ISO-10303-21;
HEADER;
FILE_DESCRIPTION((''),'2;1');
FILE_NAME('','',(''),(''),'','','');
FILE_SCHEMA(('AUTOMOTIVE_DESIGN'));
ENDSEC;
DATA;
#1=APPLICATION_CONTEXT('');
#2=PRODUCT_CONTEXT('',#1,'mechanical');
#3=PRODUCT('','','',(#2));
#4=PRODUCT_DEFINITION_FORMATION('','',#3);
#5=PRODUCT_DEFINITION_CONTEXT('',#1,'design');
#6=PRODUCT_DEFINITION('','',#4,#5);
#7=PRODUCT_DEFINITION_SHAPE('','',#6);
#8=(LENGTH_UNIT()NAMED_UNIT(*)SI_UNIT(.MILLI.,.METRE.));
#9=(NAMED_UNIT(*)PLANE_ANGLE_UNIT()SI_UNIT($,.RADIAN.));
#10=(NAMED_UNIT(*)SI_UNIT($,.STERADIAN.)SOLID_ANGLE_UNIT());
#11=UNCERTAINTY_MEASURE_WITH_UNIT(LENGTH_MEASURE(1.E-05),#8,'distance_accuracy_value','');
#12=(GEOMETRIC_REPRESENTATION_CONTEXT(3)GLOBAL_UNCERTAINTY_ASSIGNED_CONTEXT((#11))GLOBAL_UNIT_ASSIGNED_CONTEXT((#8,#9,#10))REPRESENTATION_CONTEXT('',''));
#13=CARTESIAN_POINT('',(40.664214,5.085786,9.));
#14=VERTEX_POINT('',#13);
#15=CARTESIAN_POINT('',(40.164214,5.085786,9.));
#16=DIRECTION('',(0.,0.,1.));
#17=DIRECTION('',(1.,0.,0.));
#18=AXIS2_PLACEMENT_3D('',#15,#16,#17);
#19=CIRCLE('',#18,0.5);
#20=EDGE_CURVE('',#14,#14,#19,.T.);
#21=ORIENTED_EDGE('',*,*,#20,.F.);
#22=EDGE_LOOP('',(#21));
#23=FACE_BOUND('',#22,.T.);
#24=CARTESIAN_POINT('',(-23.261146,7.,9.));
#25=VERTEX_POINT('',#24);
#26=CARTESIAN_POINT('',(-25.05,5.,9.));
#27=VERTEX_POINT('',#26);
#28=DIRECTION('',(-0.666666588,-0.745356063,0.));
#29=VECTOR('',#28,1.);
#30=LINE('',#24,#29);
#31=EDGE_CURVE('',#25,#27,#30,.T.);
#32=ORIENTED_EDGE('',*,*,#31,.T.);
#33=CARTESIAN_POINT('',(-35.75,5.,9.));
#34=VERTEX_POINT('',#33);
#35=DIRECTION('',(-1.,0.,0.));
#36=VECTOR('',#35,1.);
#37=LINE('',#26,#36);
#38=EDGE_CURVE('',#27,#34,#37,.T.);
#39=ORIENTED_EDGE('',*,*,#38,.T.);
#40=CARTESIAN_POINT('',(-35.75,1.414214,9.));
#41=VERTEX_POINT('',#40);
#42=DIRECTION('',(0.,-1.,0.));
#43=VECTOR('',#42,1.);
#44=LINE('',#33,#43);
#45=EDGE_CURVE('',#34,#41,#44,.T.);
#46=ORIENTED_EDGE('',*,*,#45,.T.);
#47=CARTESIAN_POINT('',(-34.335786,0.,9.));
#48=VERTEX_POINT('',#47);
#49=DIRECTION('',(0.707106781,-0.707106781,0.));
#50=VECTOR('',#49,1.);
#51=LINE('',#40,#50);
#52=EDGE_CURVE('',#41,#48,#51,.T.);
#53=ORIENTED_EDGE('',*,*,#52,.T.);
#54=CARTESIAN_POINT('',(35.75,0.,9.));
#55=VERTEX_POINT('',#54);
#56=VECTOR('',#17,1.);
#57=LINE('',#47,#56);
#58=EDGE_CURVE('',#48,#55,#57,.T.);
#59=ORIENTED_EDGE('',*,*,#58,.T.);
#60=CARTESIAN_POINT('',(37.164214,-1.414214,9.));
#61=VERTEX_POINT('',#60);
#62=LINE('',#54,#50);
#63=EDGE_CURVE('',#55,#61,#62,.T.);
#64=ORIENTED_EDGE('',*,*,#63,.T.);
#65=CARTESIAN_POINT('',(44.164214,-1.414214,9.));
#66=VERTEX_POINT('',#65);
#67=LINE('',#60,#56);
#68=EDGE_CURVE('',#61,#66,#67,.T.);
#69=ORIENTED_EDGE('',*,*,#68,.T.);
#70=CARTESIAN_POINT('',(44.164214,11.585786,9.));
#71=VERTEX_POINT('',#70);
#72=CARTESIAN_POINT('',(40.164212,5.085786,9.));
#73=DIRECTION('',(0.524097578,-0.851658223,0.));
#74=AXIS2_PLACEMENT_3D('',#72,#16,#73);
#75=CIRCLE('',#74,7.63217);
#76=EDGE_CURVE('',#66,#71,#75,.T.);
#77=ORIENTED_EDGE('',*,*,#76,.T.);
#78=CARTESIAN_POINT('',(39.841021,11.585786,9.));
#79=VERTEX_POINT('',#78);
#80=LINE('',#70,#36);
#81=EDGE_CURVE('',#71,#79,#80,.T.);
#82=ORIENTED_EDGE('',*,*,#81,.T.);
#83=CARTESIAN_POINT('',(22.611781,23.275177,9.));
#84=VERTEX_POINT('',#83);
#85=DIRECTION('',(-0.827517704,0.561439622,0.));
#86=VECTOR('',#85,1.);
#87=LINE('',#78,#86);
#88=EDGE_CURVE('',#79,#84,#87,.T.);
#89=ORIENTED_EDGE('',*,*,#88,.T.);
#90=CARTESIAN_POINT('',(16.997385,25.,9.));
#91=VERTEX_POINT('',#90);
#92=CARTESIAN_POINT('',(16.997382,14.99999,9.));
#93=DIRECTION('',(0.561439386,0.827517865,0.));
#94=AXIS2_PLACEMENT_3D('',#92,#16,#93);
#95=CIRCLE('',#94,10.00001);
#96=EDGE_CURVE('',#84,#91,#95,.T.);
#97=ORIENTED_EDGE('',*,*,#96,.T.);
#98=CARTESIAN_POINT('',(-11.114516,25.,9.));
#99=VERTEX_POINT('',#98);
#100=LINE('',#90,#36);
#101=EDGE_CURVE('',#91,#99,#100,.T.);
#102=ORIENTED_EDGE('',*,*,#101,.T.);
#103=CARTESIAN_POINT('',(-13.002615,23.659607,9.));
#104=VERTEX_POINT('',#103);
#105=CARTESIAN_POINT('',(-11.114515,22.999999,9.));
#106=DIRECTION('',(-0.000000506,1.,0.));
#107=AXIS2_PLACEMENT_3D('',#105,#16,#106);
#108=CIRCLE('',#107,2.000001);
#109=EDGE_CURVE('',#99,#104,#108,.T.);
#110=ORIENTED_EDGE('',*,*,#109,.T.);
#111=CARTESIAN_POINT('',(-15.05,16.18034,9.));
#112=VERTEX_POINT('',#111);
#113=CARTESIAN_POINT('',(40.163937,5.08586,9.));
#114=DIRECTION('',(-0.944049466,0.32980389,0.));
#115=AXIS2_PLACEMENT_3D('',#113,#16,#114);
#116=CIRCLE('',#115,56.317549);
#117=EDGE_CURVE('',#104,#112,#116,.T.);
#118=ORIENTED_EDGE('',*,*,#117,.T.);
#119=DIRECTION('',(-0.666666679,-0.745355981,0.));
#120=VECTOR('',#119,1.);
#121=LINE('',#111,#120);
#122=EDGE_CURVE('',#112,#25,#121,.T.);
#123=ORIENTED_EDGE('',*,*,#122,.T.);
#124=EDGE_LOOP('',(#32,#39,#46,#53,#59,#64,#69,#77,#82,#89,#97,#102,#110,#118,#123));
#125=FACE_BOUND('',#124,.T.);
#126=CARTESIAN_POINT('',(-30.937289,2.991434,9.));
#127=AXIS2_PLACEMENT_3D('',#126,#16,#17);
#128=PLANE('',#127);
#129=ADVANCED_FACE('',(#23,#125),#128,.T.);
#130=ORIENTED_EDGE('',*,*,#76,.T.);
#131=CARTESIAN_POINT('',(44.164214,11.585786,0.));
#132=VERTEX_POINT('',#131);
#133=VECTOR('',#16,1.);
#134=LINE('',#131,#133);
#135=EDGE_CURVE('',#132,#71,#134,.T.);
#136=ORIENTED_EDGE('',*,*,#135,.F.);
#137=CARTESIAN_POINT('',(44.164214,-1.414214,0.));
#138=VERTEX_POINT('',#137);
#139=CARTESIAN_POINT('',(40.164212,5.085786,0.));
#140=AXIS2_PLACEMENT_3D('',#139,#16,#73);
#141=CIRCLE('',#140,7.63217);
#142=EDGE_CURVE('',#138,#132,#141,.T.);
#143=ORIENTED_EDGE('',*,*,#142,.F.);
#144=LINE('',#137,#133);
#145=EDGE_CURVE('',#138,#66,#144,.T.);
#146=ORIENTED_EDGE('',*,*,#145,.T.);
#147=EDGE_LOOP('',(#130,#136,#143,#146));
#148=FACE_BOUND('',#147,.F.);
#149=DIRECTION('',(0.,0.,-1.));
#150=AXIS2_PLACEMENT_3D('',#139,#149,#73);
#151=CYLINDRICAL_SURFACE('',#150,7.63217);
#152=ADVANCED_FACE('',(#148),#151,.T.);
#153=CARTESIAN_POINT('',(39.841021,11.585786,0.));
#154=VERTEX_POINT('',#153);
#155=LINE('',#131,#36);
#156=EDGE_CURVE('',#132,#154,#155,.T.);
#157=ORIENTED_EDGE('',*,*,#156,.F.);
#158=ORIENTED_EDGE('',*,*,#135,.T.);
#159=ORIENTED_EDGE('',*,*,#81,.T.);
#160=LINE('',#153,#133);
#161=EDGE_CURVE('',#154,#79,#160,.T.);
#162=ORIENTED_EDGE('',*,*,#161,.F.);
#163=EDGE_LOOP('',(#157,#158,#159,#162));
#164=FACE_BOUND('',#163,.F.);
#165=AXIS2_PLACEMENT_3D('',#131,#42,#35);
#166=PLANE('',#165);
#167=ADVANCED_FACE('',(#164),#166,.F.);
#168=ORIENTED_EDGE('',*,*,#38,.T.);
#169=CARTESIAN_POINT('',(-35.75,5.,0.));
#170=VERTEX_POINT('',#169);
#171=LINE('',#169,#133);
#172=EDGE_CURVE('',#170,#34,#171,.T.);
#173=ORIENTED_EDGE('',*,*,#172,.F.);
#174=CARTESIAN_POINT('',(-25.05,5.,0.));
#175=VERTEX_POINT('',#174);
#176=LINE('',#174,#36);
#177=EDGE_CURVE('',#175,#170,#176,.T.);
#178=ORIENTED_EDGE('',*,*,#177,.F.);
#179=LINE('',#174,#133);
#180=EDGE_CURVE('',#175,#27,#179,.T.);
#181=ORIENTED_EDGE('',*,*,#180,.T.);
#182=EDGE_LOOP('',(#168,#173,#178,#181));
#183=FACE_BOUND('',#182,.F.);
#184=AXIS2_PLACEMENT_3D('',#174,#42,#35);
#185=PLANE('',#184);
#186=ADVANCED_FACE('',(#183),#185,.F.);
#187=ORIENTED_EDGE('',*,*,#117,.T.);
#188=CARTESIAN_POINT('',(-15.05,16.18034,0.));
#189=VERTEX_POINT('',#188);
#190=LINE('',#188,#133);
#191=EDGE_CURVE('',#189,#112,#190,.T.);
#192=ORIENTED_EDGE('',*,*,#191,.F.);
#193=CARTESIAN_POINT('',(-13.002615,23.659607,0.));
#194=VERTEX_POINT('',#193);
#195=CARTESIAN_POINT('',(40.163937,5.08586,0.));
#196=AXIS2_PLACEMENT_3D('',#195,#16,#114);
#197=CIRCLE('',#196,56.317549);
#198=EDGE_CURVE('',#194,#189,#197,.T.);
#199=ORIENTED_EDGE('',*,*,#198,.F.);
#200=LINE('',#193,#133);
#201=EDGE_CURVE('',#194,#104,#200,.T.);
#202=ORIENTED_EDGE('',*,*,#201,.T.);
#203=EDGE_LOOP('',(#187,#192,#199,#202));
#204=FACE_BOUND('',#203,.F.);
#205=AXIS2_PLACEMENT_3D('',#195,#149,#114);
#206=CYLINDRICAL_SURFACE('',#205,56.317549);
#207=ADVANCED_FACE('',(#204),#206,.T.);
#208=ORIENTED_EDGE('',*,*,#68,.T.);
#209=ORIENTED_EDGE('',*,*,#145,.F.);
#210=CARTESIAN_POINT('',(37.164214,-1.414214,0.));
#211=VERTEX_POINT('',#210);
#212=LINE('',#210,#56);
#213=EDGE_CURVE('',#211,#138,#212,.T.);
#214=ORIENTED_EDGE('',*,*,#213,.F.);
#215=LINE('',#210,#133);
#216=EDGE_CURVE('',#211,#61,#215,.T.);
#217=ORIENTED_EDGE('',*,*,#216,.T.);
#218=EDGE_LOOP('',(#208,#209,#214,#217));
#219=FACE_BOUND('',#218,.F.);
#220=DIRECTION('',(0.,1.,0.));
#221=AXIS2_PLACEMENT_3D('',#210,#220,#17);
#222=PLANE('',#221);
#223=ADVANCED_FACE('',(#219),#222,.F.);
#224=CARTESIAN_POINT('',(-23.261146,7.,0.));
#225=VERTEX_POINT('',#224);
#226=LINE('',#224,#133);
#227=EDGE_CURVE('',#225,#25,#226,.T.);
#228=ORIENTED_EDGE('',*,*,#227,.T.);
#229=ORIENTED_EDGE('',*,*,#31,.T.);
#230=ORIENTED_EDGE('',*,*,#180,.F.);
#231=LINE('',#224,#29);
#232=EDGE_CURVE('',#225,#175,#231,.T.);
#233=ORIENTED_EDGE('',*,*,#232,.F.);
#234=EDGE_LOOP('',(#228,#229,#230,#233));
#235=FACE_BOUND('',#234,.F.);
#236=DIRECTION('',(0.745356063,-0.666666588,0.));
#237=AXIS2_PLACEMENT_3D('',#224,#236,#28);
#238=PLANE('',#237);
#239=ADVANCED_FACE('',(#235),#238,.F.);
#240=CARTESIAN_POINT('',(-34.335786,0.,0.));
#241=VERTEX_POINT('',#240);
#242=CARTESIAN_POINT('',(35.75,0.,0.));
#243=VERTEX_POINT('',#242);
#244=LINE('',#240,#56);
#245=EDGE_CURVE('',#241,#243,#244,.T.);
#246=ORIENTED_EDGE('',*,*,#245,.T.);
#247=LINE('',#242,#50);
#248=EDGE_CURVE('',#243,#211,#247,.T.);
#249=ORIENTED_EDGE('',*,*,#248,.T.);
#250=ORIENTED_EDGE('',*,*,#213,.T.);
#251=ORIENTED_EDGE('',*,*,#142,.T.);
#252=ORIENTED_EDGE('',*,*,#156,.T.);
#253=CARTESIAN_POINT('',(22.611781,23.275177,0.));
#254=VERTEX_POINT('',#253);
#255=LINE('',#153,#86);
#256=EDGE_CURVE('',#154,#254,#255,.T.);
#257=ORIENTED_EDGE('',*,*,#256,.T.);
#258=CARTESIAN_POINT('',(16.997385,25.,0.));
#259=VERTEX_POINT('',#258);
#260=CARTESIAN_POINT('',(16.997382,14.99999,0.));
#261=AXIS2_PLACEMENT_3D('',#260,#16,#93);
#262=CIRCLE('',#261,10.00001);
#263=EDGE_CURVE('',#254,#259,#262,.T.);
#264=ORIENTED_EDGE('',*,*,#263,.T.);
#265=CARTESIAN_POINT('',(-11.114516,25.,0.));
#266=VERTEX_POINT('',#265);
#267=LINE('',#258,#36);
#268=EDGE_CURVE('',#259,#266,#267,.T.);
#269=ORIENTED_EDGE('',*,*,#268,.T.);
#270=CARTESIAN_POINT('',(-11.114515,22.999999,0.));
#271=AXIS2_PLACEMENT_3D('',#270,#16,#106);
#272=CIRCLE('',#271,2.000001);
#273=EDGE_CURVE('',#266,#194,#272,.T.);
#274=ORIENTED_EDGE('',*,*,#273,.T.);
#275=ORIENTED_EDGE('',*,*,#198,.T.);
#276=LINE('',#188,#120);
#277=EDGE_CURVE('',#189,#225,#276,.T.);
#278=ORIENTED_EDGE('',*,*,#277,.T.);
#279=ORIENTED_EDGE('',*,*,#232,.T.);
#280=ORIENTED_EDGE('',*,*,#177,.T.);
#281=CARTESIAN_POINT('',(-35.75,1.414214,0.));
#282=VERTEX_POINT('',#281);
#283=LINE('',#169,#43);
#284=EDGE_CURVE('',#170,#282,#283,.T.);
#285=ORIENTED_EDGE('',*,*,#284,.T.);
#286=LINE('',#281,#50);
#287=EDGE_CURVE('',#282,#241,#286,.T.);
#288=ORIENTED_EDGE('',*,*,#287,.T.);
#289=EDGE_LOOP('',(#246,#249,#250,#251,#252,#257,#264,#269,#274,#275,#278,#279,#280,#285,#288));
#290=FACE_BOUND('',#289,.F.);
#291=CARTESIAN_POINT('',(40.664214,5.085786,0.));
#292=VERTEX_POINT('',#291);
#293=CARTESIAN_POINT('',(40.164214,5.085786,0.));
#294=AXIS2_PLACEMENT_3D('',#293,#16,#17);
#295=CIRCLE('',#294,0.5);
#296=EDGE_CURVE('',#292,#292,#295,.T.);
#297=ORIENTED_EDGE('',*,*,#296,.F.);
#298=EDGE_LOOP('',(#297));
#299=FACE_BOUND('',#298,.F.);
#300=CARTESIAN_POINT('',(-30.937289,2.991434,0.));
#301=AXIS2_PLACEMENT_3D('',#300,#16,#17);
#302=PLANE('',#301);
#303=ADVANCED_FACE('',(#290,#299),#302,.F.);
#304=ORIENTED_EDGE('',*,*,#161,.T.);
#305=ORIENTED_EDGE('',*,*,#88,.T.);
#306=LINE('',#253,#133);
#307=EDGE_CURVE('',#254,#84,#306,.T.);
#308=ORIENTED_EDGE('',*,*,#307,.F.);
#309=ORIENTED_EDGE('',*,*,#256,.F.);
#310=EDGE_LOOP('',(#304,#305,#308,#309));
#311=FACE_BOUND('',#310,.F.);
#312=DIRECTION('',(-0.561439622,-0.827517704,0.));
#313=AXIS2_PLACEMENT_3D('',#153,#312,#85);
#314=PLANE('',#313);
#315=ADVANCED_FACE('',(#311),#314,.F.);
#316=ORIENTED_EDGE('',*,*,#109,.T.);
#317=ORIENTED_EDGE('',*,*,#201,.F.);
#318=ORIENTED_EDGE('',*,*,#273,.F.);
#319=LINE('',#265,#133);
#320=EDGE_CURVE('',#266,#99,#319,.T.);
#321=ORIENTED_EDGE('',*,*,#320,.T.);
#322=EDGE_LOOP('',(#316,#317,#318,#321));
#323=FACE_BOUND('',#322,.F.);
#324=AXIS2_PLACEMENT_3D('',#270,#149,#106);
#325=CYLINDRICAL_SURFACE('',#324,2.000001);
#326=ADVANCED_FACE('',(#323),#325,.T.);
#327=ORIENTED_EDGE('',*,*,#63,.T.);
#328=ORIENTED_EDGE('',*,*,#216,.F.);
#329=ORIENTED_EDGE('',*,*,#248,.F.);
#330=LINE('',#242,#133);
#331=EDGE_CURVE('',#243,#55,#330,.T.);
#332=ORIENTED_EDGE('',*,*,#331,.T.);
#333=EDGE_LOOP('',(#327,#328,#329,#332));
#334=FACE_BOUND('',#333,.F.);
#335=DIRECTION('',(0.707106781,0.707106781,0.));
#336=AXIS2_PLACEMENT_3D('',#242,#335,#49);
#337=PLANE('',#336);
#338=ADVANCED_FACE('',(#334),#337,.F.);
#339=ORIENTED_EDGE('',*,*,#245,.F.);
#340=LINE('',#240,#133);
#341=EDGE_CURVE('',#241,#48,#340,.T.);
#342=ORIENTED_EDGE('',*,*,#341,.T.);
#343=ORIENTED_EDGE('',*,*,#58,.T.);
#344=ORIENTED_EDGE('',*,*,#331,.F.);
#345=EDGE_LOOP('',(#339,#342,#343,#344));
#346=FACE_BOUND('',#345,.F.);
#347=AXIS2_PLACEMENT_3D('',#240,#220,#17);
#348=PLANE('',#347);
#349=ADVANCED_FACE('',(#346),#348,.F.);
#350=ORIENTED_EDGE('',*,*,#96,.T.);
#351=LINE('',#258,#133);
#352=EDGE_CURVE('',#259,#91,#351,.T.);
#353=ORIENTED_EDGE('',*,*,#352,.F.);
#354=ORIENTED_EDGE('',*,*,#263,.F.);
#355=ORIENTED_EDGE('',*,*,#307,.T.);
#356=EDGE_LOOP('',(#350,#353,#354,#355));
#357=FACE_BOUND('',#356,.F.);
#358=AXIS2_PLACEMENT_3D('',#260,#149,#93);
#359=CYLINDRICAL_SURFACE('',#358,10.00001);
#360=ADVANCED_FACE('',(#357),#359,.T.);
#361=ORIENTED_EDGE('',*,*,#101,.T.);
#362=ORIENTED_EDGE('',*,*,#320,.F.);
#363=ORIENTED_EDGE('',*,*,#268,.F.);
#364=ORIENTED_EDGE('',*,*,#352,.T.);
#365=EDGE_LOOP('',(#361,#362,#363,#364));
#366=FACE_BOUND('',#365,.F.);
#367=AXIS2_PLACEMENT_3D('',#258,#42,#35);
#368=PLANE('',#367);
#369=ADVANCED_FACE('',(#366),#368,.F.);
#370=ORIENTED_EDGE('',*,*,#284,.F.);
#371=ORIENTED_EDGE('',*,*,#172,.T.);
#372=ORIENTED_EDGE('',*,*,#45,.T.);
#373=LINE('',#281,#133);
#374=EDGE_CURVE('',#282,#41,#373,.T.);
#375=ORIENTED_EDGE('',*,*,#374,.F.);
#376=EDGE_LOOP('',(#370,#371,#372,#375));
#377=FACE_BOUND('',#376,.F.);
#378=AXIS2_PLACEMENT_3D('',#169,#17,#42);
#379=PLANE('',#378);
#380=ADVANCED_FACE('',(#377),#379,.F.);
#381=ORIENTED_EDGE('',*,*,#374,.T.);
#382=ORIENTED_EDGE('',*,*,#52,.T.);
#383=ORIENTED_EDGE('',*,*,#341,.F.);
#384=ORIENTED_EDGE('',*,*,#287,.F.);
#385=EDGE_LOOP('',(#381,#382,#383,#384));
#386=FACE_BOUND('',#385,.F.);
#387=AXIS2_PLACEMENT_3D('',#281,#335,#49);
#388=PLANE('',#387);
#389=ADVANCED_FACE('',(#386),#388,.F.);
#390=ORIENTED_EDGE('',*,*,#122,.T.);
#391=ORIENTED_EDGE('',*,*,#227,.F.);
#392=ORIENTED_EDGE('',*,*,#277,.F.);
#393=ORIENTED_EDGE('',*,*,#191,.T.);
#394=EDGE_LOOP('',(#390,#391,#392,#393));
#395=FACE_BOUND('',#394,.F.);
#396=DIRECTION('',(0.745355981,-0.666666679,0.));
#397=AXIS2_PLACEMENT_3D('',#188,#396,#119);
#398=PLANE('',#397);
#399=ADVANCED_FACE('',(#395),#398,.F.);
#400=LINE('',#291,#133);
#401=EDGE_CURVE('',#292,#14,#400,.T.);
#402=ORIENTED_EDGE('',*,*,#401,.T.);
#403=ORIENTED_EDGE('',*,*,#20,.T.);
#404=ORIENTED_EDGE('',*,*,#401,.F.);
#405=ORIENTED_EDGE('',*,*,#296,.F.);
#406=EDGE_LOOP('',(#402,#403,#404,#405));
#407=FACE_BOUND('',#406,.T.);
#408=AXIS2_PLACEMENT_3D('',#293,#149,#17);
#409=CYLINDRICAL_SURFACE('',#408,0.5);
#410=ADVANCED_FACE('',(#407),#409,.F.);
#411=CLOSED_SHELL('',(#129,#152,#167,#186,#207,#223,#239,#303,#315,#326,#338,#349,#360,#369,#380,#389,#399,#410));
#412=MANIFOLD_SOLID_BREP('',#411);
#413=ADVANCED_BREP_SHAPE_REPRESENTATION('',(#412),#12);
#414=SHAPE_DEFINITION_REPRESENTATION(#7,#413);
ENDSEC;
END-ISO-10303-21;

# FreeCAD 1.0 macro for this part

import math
import FreeCAD as App
import Part
import Sketcher
from FreeCAD import Vector

doc = App.newDocument("Part")
body = doc.addObject("PartDesign::Body", "Body")

# Sketch on XY plane
sketch1 = body.newObject("Sketcher::SketchObject", "Sketch")
sketch1.AttachmentSupport = (doc.getObject("XY_Plane"), [""])
sketch1.MapMode = "FlatFace"
sketch1.addGeometry([
    Part.LineSegment(Vector(-35.75, 1.414214, 0), Vector(-34.335786, 0, 0)),  # 0
    Part.LineSegment(Vector(-34.335786, 0, 0), Vector(35.75, 0, 0)),  # 1
    Part.LineSegment(Vector(35.75, 0, 0), Vector(37.164214, -1.414214, 0)),  # 2
    Part.LineSegment(Vector(37.164214, -1.414214, 0), Vector(44.164214, -1.414214, 0)),  # 3
    Part.ArcOfCircle(Part.Circle(Vector(40.164212, 5.085786, 0), Vector(0, 0, 1), 7.63217), math.radians(-58.392488), math.radians(58.392488)),  # 4
    Part.LineSegment(Vector(44.164214, 11.585786, 0), Vector(39.841021, 11.585786, 0)),  # 5
    Part.LineSegment(Vector(39.841021, 11.585786, 0), Vector(22.611781, 23.275177, 0)),  # 6
    Part.ArcOfCircle(Part.Circle(Vector(16.997382, 14.99999, 0), Vector(0, 0, 1), 10.00001), math.radians(55.844601), math.radians(89.999982)),  # 7
    Part.LineSegment(Vector(16.997385, 25, 0), Vector(-11.114516, 25, 0)),  # 8
    Part.ArcOfCircle(Part.Circle(Vector(-11.114515, 22.999999, 0), Vector(0, 0, 1), 2.000001), math.radians(90.000029), math.radians(160.743128)),  # 9
    Part.ArcOfCircle(Part.Circle(Vector(40.163937, 5.08586, 0), Vector(0, 0, 1), 56.317549), math.radians(160.743127), math.radians(168.638499)),  # 10
    Part.LineSegment(Vector(-15.05, 16.18034, 0), Vector(-23.261146, 7, 0)),  # 11
    Part.LineSegment(Vector(-23.261146, 7, 0), Vector(-25.05, 5, 0)),  # 12
    Part.LineSegment(Vector(-25.05, 5, 0), Vector(-35.75, 5, 0)),  # 13
    Part.LineSegment(Vector(-35.75, 5, 0), Vector(-35.75, 1.414214, 0)),  # 14
    Part.Circle(Vector(40.164214, 5.085786, 0), Vector(0, 0, 1), 0.5),  # 15
], False)
sketch1.addConstraint([
    Sketcher.Constraint("Coincident", 0, 2, 1, 1),
    Sketcher.Constraint("Coincident", 1, 2, 2, 1),
    Sketcher.Constraint("Coincident", 2, 2, 3, 1),
    Sketcher.Constraint("Coincident", 3, 2, 4, 1),
    Sketcher.Constraint("Coincident", 4, 2, 5, 1),
    Sketcher.Constraint("Coincident", 5, 2, 6, 1),
    Sketcher.Constraint("Coincident", 6, 2, 7, 1),
    Sketcher.Constraint("Coincident", 7, 2, 8, 1),
    Sketcher.Constraint("Coincident", 8, 2, 9, 1),
    Sketcher.Constraint("Coincident", 9, 2, 10, 1),
    Sketcher.Constraint("Coincident", 10, 2, 11, 1),
    Sketcher.Constraint("Coincident", 11, 2, 12, 1),
    Sketcher.Constraint("Coincident", 12, 2, 13, 1),
    Sketcher.Constraint("Coincident", 13, 2, 14, 1),
    Sketcher.Constraint("Coincident", 14, 2, 0, 1),
    Sketcher.Constraint("Horizontal", 1),
    Sketcher.Constraint("Horizontal", 3),
    Sketcher.Constraint("Horizontal", 5),
    Sketcher.Constraint("Horizontal", 8),
    Sketcher.Constraint("Horizontal", 13),
    Sketcher.Constraint("Vertical", 14),
    Sketcher.Constraint("Coincident", 15, 3, 4, 3),
    Sketcher.Constraint("PointOnObject", 0, 2, -1),
    Sketcher.Constraint("Diameter", 15, 1.0),
    Sketcher.Constraint("Radius", 9, 2.000001),
    Sketcher.Constraint("DistanceX", 3, 1, 3, 2, 7.0),
    Sketcher.Constraint("Distance", 0, 2.000001),
    Sketcher.Constraint("Distance", 2, 2.000001),
    Sketcher.Constraint("DistanceX", 13, 2, 13, 1, 10.7),
    Sketcher.Constraint("DistanceY", -1, 1, 9, 3, 22.999999),
    Sketcher.Constraint("DistanceY", -1, 1, 11, 2, 7.0),
    Sketcher.Constraint("DistanceY", -1, 1, 12, 2, 5.0),
    Sketcher.Constraint("DistanceX", 2, 2, 4, 3, 2.999998),
    Sketcher.Constraint("DistanceX", 15, 3, 4, 2, 4.0),
    Sketcher.Constraint("DistanceY", 3, 2, 4, 2, 13.0),
    Sketcher.Constraint("DistanceX", 9, 2, 7, 2, 30.0),
    Sketcher.Constraint("DistanceX", 12, 2, 10, 2, 10.0),
    Sketcher.Constraint("DistanceX", 0, 2, 4, 3, 74.499998),
    Sketcher.Constraint("DistanceX", -1, 1, 1, 2, 35.75),
    Sketcher.Constraint("DistanceX", 10, 2, -1, 1, 15.05),
    Sketcher.Constraint("Radius", 7, 10.00001),
    Sketcher.Constraint("Radius", 10, 56.317549),
    Sketcher.Constraint("DistanceX", 8, 2, 8, 1, 28.111901),
    Sketcher.Constraint("DistanceX", 7, 3, 6, 2, 5.614399),
    Sketcher.Constraint("DistanceX", 9, 3, 7, 2, 28.1119),
    Sketcher.Constraint("Distance", 6, 20.820388),
    Sketcher.Constraint("Distance", 11, 12.316719),
    Sketcher.Constraint("Distance", 12, 2.683281),
    Sketcher.Constraint("DistanceX", 1, 1, 1, 2, 70.085786),
    Sketcher.Constraint("DistanceX", 5, 2, 5, 1, 4.323193),
    Sketcher.Constraint("DistanceY", -1, 1, 10, 3, 5.08586),
])
pad1 = body.newObject("PartDesign::Pad", "Pad")
pad1.Profile = sketch1
pad1.Length = 9

doc.recompute()
